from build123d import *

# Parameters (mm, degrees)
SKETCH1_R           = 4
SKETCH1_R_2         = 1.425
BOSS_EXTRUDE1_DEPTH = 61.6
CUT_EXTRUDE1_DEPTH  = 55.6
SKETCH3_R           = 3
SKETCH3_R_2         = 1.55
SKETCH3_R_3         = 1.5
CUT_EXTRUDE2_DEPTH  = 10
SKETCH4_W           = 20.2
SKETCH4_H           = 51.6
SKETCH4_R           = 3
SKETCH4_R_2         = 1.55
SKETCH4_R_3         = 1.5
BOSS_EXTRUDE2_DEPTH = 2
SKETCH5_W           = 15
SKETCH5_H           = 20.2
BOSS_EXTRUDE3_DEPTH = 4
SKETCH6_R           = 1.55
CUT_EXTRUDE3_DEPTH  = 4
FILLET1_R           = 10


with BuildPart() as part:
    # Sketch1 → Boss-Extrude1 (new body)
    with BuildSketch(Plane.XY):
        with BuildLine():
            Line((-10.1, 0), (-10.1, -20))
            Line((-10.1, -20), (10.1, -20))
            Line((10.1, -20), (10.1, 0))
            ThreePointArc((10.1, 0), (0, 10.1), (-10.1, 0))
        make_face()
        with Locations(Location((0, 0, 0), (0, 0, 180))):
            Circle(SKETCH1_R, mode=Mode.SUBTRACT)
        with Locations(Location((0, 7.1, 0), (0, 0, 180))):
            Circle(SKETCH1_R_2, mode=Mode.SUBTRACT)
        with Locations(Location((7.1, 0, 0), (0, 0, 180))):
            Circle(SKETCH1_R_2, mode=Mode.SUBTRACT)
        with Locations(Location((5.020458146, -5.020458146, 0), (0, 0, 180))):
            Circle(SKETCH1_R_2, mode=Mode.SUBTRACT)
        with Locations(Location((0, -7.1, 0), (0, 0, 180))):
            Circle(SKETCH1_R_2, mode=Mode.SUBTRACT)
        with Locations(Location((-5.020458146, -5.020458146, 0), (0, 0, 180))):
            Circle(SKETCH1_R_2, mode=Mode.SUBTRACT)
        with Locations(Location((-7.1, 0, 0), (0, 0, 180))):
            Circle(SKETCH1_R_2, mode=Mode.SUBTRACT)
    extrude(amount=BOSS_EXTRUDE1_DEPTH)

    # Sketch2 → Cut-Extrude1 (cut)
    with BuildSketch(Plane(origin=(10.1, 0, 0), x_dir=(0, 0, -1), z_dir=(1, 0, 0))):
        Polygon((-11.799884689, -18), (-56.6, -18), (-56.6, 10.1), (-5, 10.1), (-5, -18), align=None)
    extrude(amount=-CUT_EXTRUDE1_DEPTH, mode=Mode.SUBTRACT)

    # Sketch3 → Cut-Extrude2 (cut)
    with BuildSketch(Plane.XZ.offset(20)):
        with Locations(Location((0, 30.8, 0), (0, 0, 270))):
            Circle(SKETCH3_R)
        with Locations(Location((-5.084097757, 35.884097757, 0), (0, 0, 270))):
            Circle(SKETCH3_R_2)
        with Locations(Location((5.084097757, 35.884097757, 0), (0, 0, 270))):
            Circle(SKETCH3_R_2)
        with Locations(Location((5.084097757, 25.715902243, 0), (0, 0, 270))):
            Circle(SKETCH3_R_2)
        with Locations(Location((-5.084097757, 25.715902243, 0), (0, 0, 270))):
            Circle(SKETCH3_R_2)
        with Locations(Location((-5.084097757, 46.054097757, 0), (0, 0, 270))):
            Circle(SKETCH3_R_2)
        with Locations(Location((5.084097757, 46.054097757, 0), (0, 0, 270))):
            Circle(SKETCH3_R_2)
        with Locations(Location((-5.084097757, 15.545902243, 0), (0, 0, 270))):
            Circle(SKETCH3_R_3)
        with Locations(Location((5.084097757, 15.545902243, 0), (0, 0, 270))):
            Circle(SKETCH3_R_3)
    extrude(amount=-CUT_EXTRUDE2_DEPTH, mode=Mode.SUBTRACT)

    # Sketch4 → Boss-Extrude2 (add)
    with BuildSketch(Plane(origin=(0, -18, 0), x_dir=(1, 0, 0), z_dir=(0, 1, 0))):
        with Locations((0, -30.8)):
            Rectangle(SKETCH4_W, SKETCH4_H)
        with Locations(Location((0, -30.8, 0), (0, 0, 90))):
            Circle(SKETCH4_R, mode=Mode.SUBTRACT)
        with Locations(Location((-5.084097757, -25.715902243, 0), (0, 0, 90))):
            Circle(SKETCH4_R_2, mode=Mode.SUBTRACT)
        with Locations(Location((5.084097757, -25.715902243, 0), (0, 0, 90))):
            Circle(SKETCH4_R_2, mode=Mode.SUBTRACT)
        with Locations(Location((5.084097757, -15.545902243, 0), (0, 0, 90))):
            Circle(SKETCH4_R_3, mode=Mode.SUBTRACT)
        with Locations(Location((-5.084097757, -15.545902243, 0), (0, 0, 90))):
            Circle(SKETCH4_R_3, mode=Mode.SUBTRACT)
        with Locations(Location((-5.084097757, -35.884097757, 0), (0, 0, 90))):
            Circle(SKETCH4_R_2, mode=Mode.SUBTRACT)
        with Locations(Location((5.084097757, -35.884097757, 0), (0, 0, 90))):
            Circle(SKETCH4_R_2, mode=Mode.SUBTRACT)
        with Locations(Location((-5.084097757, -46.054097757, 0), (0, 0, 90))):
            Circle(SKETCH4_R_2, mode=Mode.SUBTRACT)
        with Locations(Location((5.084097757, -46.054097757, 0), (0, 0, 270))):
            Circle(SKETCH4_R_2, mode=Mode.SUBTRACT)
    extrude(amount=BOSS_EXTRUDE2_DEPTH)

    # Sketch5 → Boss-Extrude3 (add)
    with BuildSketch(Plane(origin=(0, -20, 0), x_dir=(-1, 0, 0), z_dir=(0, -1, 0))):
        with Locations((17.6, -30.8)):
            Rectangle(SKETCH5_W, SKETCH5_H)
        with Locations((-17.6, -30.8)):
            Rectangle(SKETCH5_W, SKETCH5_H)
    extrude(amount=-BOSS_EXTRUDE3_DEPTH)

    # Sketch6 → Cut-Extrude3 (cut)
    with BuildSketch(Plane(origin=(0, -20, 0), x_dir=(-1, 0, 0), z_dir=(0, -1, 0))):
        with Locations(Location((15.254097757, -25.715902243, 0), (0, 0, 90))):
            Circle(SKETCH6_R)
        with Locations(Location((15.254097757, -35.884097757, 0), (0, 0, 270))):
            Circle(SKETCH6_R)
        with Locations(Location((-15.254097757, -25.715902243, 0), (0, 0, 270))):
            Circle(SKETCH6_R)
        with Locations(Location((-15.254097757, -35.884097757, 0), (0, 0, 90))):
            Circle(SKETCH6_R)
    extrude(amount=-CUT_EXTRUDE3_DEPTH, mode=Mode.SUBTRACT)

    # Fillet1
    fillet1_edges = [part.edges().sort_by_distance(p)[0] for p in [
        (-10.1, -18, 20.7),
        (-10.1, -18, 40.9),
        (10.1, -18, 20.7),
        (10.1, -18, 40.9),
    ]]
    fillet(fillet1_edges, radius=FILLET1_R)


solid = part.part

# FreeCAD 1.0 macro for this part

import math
import FreeCAD as App
import Part
import Sketcher

V = App.Vector
Q = App.Units.Quantity


def edges_at(feature, points):
    """Names of the edges that pass closest to the given points."""
    edges = feature.Shape.Edges
    near = lambda p: min(range(len(edges)), key=lambda i: edges[i].distToShape(Part.Vertex(*p))[0])
    return sorted({f"Edge{near(p) + 1}" for p in points})

doc = App.newDocument("Part")
body = doc.addObject("PartDesign::Body", "Body")

sketch1 = body.newObject("Sketcher::SketchObject", "Sketch")
sketch1.AttachmentSupport = (doc.getObject("XY_Plane"), [""])
sketch1.MapMode = "FlatFace"
sketch1.addGeometry([
    Part.LineSegment(V(-10.1, 0, 0), V(-10.1, -20, 0)),
    Part.LineSegment(V(-10.1, -20, 0), V(10.1, -20, 0)),
    Part.LineSegment(V(10.1, -20, 0), V(10.1, 0, 0)),
    Part.ArcOfCircle(Part.Circle(V(0, 0, 0), V(0, 0, 1), 10.1), math.radians(0), math.radians(180)),
    Part.Circle(V(-5, -5, 0), V(0, 0, 1), 1.4),
    Part.Circle(V(-7.1, 0, 0), V(0, 0, 1), 1.4),
    Part.Circle(V(0, -7.1, 0), V(0, 0, 1), 1.4),
    Part.Circle(V(5, -5, 0), V(0, 0, 1), 1.4),
    Part.Circle(V(0, 0, 0), V(0, 0, 1), 4),
    Part.Circle(V(7.1, 0, 0), V(0, 0, 1), 1.4),
    Part.Circle(V(0, 7.1, 0), V(0, 0, 1), 1.4),
], False)
sketch1.addConstraint([
    Sketcher.Constraint("Coincident", 0, 2, 1, 1),
    Sketcher.Constraint("Coincident", 1, 2, 2, 1),
    Sketcher.Constraint("Tangent", 2, 2, 3, 1),
    Sketcher.Constraint("Tangent", 3, 2, 0, 1),
    Sketcher.Constraint("Vertical", 0),
    Sketcher.Constraint("Horizontal", 1),
    Sketcher.Constraint("Vertical", 2),
    Sketcher.Constraint("Coincident", 3, 3, -1, 1),
    Sketcher.Constraint("Coincident", 8, 3, -1, 1),
    Sketcher.Constraint("Equal", 4, 5),
    Sketcher.Constraint("Equal", 5, 6),
    Sketcher.Constraint("Equal", 6, 7),
    Sketcher.Constraint("Equal", 7, 9),
    Sketcher.Constraint("Equal", 9, 10),
    Sketcher.Constraint("Symmetric", 5, 3, 9, 3, -1, 1),
    Sketcher.Constraint("Symmetric", 6, 3, 10, 3, -1, 1),
    Sketcher.Constraint("Symmetric", 4, 3, 7, 3, -2),
    Sketcher.Constraint("PointOnObject", 5, 3, -1),
    Sketcher.Constraint("PointOnObject", 6, 3, -2),
    Sketcher.Constraint("Diameter", 8, Q("8 mm")),
    Sketcher.Constraint("Radius", 3, Q("10.1 mm")),
    Sketcher.Constraint("Diameter", 4, Q("2.85 mm")),
    Sketcher.Constraint("DistanceY", 0, 2, 0, 1, Q("20 mm")),
    Sketcher.Constraint("DistanceX", 0, 2, 5, 3, Q("3 mm")),
    Sketcher.Constraint("DistanceY", 6, 3, -1, 1, Q("7.1 mm")),
    Sketcher.Constraint("DistanceX", 4, 3, -1, 1, Q("5.020458 mm")),
    Sketcher.Constraint("DistanceY", 4, 3, -1, 1, Q("5.020458 mm")),
])
pad1 = body.newObject("PartDesign::Pad", "Pad")
pad1.Profile = sketch1
pad1.Length = 61.6

sketch2 = body.newObject("Sketcher::SketchObject", "Sketch001")
sketch2.AttachmentSupport = (doc.getObject("YZ_Plane"), [""])
sketch2.MapMode = "FlatFace"
sketch2.AttachmentOffset = App.Placement(V(0, 0, 10.1), App.Rotation())
sketch2.addGeometry([
    Part.LineSegment(V(-18, 57, 0), V(-18, 5, 0)),
    Part.LineSegment(V(-18, 5, 0), V(10, 5, 0)),
    Part.LineSegment(V(10, 5, 0), V(10, 57, 0)),
    Part.LineSegment(V(10, 57, 0), V(-18, 57, 0)),
], False)
sketch2.addConstraint([
    Sketcher.Constraint("Coincident", 0, 2, 1, 1),
    Sketcher.Constraint("Coincident", 1, 2, 2, 1),
    Sketcher.Constraint("Coincident", 2, 2, 3, 1),
    Sketcher.Constraint("Coincident", 3, 2, 0, 1),
    Sketcher.Constraint("Vertical", 0),
    Sketcher.Constraint("Horizontal", 1),
    Sketcher.Constraint("Vertical", 2),
    Sketcher.Constraint("Horizontal", 3),
    Sketcher.Constraint("DistanceX", 1, 1, 1, 2, Q("28.1 mm")),
    Sketcher.Constraint("DistanceY", 0, 2, 0, 1, Q("51.6 mm")),
    Sketcher.Constraint("DistanceX", 0, 2, -1, 1, Q("18 mm")),
    Sketcher.Constraint("DistanceY", -1, 1, 0, 2, Q("5 mm")),
])
pocket1 = body.newObject("PartDesign::Pocket", "Pocket")
pocket1.Profile = sketch2
pocket1.Length = 55.6

sketch3 = body.newObject("Sketcher::SketchObject", "Sketch002")
sketch3.AttachmentSupport = (doc.getObject("XZ_Plane"), [""])
sketch3.MapMode = "FlatFace"
sketch3.AttachmentOffset = App.Placement(V(0, 0, 20), App.Rotation())
sketch3.addGeometry([
    Part.Circle(V(0, 30.8, 0), V(0, 0, 1), 3),
    Part.Circle(V(-5.1, 35.9, 0), V(0, 0, 1), 1.6),
    Part.Circle(V(5.1, 35.9, 0), V(0, 0, 1), 1.6),
    Part.Circle(V(5.1, 25.7, 0), V(0, 0, 1), 1.6),
    Part.Circle(V(-5.1, 25.7, 0), V(0, 0, 1), 1.6),
    Part.Circle(V(-5.1, 46.1, 0), V(0, 0, 1), 1.6),
    Part.Circle(V(5.1, 46.1, 0), V(0, 0, 1), 1.6),
    Part.Circle(V(-5.1, 15.5, 0), V(0, 0, 1), 1.5),
    Part.Circle(V(5.1, 15.5, 0), V(0, 0, 1), 1.5),
], False)
sketch3.addConstraint([
    Sketcher.Constraint("Equal", 1, 2),
    Sketcher.Constraint("Equal", 2, 3),
    Sketcher.Constraint("Equal", 3, 4),
    Sketcher.Constraint("Equal", 4, 5),
    Sketcher.Constraint("Equal", 5, 6),
    Sketcher.Constraint("Equal", 7, 8),
    Sketcher.Constraint("Symmetric", 1, 3, 2, 3, -2),
    Sketcher.Constraint("Symmetric", 3, 3, 4, 3, -2),
    Sketcher.Constraint("Symmetric", 5, 3, 6, 3, -2),
    Sketcher.Constraint("Symmetric", 7, 3, 8, 3, -2),
    Sketcher.Constraint("PointOnObject", 0, 3, -2),
    Sketcher.Constraint("Vertical", 2, 3, 3, 3),
    Sketcher.Constraint("Vertical", 4, 3, 5, 3),
    Sketcher.Constraint("Vertical", 5, 3, 7, 3),
    Sketcher.Constraint("Diameter", 0, Q("6 mm")),
    Sketcher.Constraint("Diameter", 7, Q("3 mm")),
    Sketcher.Constraint("Diameter", 1, Q("3.1 mm")),
    Sketcher.Constraint("DistanceY", -1, 1, 0, 3, Q("30.8 mm")),
    Sketcher.Constraint("DistanceY", 1, 3, 5, 3, Q("10.17 mm")),
    Sketcher.Constraint("DistanceY", 7, 3, 4, 3, Q("10.17 mm")),
    Sketcher.Constraint("DistanceX", 1, 3, -1, 1, Q("5.084098 mm")),
    Sketcher.Constraint("DistanceY", -1, 1, 1, 3, Q("35.884098 mm")),
    Sketcher.Constraint("DistanceY", -1, 1, 3, 3, Q("25.715902 mm")),
])
pocket2 = body.newObject("PartDesign::Pocket", "Pocket001")
pocket2.Profile = sketch3
pocket2.Length = 10

sketch4 = body.newObject("Sketcher::SketchObject", "Sketch003")
sketch4.AttachmentSupport = (doc.getObject("XZ_Plane"), [""])
sketch4.MapMode = "FlatFace"
sketch4.AttachmentOffset = App.Placement(V(0, 0, 18), App.Rotation())
sketch4.addGeometry([
    Part.LineSegment(V(-10.1, 5, 0), V(-10.1, 56.6, 0)),
    Part.LineSegment(V(-10.1, 56.6, 0), V(10.1, 56.6, 0)),
    Part.LineSegment(V(10.1, 56.6, 0), V(10.1, 5, 0)),
    Part.LineSegment(V(10.1, 5, 0), V(-10.1, 5, 0)),
    Part.Circle(V(-5.1, 46.1, 0), V(0, 0, 1), 1.6),
    Part.Circle(V(-5.1, 35.9, 0), V(0, 0, 1), 1.6),
    Part.Circle(V(5.1, 46.1, 0), V(0, 0, 1), 1.6),
    Part.Circle(V(5.1, 35.9, 0), V(0, 0, 1), 1.6),
    Part.Circle(V(-5.1, 25.7, 0), V(0, 0, 1), 1.6),
    Part.Circle(V(-5.1, 15.5, 0), V(0, 0, 1), 1.5),
    Part.Circle(V(0, 30.8, 0), V(0, 0, 1), 3),
    Part.Circle(V(5.1, 25.7, 0), V(0, 0, 1), 1.6),
    Part.Circle(V(5.1, 15.5, 0), V(0, 0, 1), 1.5),
], False)
sketch4.addConstraint([
    Sketcher.Constraint("Coincident", 0, 2, 1, 1),
    Sketcher.Constraint("Coincident", 1, 2, 2, 1),
    Sketcher.Constraint("Coincident", 2, 2, 3, 1),
    Sketcher.Constraint("Coincident", 3, 2, 0, 1),
    Sketcher.Constraint("Vertical", 0),
    Sketcher.Constraint("Horizontal", 1),
    Sketcher.Constraint("Vertical", 2),
    Sketcher.Constraint("Horizontal", 3),
    Sketcher.Constraint("Equal", 4, 5),
    Sketcher.Constraint("Equal", 5, 6),
    Sketcher.Constraint("Equal", 6, 7),
    Sketcher.Constraint("Equal", 7, 8),
    Sketcher.Constraint("Equal", 8, 11),
    Sketcher.Constraint("Equal", 9, 12),
    Sketcher.Constraint("Symmetric", 4, 3, 6, 3, -2),
    Sketcher.Constraint("Symmetric", 5, 3, 7, 3, -2),
    Sketcher.Constraint("Symmetric", 8, 3, 11, 3, -2),
    Sketcher.Constraint("Symmetric", 9, 3, 12, 3, -2),
    Sketcher.Constraint("PointOnObject", 10, 3, -2),
    Sketcher.Constraint("Vertical", 4, 3, 5, 3),
    Sketcher.Constraint("Vertical", 5, 3, 8, 3),
    Sketcher.Constraint("Vertical", 8, 3, 9, 3),
    Sketcher.Constraint("Diameter", 9, Q("3 mm")),
    Sketcher.Constraint("Diameter", 10, Q("6 mm")),
    Sketcher.Constraint("Diameter", 4, Q("3.1 mm")),
    Sketcher.Constraint("DistanceX", 1, 1, 1, 2, Q("20.2 mm")),
    Sketcher.Constraint("DistanceY", 0, 1, 0, 2, Q("51.6 mm")),
    Sketcher.Constraint("DistanceY", -1, 1, 2, 2, Q("5 mm")),
    Sketcher.Constraint("DistanceY", -1, 1, 10, 3, Q("30.8 mm")),
    Sketcher.Constraint("DistanceX", 0, 2, -1, 1, Q("10.1 mm")),
    Sketcher.Constraint("DistanceY", 5, 3, 4, 3, Q("10.17 mm")),
    Sketcher.Constraint("DistanceY", 9, 3, 8, 3, Q("10.17 mm")),
    Sketcher.Constraint("DistanceX", 4, 3, -1, 1, Q("5.084098 mm")),
    Sketcher.Constraint("DistanceY", -1, 1, 4, 3, Q("46.054098 mm")),
    Sketcher.Constraint("DistanceY", -1, 1, 8, 3, Q("25.715902 mm")),
])
pad2 = body.newObject("PartDesign::Pad", "Pad001")
pad2.Profile = sketch4
pad2.Length = 2
pad2.Reversed = True

sketch5 = body.newObject("Sketcher::SketchObject", "Sketch004")
sketch5.AttachmentSupport = (doc.getObject("XZ_Plane"), [""])
sketch5.MapMode = "FlatFace"
sketch5.AttachmentOffset = App.Placement(V(0, 0, 20), App.Rotation())
sketch5.addGeometry([
    Part.LineSegment(V(-10, 21, 0), V(-10, 41, 0)),
    Part.LineSegment(V(-10, 41, 0), V(-25, 41, 0)),
    Part.LineSegment(V(-25, 41, 0), V(-25, 21, 0)),
    Part.LineSegment(V(-25, 21, 0), V(-10, 21, 0)),
    Part.LineSegment(V(25, 21, 0), V(25, 41, 0)),
    Part.LineSegment(V(25, 41, 0), V(10, 41, 0)),
    Part.LineSegment(V(10, 41, 0), V(10, 21, 0)),
    Part.LineSegment(V(10, 21, 0), V(25, 21, 0)),
], False)
sketch5.addConstraint([
    Sketcher.Constraint("Coincident", 0, 2, 1, 1),
    Sketcher.Constraint("Coincident", 1, 2, 2, 1),
    Sketcher.Constraint("Coincident", 2, 2, 3, 1),
    Sketcher.Constraint("Coincident", 3, 2, 0, 1),
    Sketcher.Constraint("Coincident", 4, 2, 5, 1),
    Sketcher.Constraint("Coincident", 5, 2, 6, 1),
    Sketcher.Constraint("Coincident", 6, 2, 7, 1),
    Sketcher.Constraint("Coincident", 7, 2, 4, 1),
    Sketcher.Constraint("Vertical", 0),
    Sketcher.Constraint("Horizontal", 1),
    Sketcher.Constraint("Vertical", 2),
    Sketcher.Constraint("Horizontal", 3),
    Sketcher.Constraint("Vertical", 4),
    Sketcher.Constraint("Horizontal", 5),
    Sketcher.Constraint("Vertical", 6),
    Sketcher.Constraint("Horizontal", 7),
    Sketcher.Constraint("Symmetric", 1, 2, 4, 2, -2),
    Sketcher.Constraint("Symmetric", 3, 2, 6, 2, -2),
    Sketcher.Constraint("DistanceX", 1, 2, 1, 1, Q("15 mm")),
    Sketcher.Constraint("DistanceY", 0, 1, 0, 2, Q("20.2 mm")),
    Sketcher.Constraint("DistanceX", 0, 2, -1, 1, Q("10.1 mm")),
    Sketcher.Constraint("DistanceY", -1, 1, 0, 2, Q("40.9 mm")),
])
pad3 = body.newObject("PartDesign::Pad", "Pad002")
pad3.Profile = sketch5
pad3.Length = 4
pad3.Reversed = True

sketch6 = body.newObject("Sketcher::SketchObject", "Sketch005")
sketch6.AttachmentSupport = (doc.getObject("XZ_Plane"), [""])
sketch6.MapMode = "FlatFace"
sketch6.AttachmentOffset = App.Placement(V(0, 0, 20), App.Rotation())
sketch6.addGeometry([
    Part.Circle(V(-15.3, 25.7, 0), V(0, 0, 1), 1.6),
    Part.Circle(V(-15.3, 35.9, 0), V(0, 0, 1), 1.6),
    Part.Circle(V(15.3, 25.7, 0), V(0, 0, 1), 1.6),
    Part.Circle(V(15.3, 35.9, 0), V(0, 0, 1), 1.6),
], False)
sketch6.addConstraint([
    Sketcher.Constraint("Equal", 0, 1),
    Sketcher.Constraint("Equal", 1, 2),
    Sketcher.Constraint("Equal", 2, 3),
    Sketcher.Constraint("Symmetric", 0, 3, 2, 3, -2),
    Sketcher.Constraint("Symmetric", 1, 3, 3, 3, -2),
    Sketcher.Constraint("Vertical", 0, 3, 1, 3),
    Sketcher.Constraint("Diameter", 0, Q("3.1 mm")),
    Sketcher.Constraint("DistanceX", 0, 3, -1, 1, Q("15.254098 mm")),
    Sketcher.Constraint("DistanceY", -1, 1, 0, 3, Q("25.715902 mm")),
    Sketcher.Constraint("DistanceY", -1, 1, 1, 3, Q("35.884098 mm")),
])
pocket3 = body.newObject("PartDesign::Pocket", "Pocket002")
pocket3.Profile = sketch6
pocket3.Length = 4
doc.recompute()

fillet = body.newObject("PartDesign::Fillet", "Fillet")
fillet.Base = (pocket3, edges_at(pocket3, [
    (-10.1, -18, 20.7),
    (-10.1, -18, 40.9),
    (10.1, -18, 20.7),
    (10.1, -18, 40.9),
]))
fillet.Radius = 10

doc.recompute()
